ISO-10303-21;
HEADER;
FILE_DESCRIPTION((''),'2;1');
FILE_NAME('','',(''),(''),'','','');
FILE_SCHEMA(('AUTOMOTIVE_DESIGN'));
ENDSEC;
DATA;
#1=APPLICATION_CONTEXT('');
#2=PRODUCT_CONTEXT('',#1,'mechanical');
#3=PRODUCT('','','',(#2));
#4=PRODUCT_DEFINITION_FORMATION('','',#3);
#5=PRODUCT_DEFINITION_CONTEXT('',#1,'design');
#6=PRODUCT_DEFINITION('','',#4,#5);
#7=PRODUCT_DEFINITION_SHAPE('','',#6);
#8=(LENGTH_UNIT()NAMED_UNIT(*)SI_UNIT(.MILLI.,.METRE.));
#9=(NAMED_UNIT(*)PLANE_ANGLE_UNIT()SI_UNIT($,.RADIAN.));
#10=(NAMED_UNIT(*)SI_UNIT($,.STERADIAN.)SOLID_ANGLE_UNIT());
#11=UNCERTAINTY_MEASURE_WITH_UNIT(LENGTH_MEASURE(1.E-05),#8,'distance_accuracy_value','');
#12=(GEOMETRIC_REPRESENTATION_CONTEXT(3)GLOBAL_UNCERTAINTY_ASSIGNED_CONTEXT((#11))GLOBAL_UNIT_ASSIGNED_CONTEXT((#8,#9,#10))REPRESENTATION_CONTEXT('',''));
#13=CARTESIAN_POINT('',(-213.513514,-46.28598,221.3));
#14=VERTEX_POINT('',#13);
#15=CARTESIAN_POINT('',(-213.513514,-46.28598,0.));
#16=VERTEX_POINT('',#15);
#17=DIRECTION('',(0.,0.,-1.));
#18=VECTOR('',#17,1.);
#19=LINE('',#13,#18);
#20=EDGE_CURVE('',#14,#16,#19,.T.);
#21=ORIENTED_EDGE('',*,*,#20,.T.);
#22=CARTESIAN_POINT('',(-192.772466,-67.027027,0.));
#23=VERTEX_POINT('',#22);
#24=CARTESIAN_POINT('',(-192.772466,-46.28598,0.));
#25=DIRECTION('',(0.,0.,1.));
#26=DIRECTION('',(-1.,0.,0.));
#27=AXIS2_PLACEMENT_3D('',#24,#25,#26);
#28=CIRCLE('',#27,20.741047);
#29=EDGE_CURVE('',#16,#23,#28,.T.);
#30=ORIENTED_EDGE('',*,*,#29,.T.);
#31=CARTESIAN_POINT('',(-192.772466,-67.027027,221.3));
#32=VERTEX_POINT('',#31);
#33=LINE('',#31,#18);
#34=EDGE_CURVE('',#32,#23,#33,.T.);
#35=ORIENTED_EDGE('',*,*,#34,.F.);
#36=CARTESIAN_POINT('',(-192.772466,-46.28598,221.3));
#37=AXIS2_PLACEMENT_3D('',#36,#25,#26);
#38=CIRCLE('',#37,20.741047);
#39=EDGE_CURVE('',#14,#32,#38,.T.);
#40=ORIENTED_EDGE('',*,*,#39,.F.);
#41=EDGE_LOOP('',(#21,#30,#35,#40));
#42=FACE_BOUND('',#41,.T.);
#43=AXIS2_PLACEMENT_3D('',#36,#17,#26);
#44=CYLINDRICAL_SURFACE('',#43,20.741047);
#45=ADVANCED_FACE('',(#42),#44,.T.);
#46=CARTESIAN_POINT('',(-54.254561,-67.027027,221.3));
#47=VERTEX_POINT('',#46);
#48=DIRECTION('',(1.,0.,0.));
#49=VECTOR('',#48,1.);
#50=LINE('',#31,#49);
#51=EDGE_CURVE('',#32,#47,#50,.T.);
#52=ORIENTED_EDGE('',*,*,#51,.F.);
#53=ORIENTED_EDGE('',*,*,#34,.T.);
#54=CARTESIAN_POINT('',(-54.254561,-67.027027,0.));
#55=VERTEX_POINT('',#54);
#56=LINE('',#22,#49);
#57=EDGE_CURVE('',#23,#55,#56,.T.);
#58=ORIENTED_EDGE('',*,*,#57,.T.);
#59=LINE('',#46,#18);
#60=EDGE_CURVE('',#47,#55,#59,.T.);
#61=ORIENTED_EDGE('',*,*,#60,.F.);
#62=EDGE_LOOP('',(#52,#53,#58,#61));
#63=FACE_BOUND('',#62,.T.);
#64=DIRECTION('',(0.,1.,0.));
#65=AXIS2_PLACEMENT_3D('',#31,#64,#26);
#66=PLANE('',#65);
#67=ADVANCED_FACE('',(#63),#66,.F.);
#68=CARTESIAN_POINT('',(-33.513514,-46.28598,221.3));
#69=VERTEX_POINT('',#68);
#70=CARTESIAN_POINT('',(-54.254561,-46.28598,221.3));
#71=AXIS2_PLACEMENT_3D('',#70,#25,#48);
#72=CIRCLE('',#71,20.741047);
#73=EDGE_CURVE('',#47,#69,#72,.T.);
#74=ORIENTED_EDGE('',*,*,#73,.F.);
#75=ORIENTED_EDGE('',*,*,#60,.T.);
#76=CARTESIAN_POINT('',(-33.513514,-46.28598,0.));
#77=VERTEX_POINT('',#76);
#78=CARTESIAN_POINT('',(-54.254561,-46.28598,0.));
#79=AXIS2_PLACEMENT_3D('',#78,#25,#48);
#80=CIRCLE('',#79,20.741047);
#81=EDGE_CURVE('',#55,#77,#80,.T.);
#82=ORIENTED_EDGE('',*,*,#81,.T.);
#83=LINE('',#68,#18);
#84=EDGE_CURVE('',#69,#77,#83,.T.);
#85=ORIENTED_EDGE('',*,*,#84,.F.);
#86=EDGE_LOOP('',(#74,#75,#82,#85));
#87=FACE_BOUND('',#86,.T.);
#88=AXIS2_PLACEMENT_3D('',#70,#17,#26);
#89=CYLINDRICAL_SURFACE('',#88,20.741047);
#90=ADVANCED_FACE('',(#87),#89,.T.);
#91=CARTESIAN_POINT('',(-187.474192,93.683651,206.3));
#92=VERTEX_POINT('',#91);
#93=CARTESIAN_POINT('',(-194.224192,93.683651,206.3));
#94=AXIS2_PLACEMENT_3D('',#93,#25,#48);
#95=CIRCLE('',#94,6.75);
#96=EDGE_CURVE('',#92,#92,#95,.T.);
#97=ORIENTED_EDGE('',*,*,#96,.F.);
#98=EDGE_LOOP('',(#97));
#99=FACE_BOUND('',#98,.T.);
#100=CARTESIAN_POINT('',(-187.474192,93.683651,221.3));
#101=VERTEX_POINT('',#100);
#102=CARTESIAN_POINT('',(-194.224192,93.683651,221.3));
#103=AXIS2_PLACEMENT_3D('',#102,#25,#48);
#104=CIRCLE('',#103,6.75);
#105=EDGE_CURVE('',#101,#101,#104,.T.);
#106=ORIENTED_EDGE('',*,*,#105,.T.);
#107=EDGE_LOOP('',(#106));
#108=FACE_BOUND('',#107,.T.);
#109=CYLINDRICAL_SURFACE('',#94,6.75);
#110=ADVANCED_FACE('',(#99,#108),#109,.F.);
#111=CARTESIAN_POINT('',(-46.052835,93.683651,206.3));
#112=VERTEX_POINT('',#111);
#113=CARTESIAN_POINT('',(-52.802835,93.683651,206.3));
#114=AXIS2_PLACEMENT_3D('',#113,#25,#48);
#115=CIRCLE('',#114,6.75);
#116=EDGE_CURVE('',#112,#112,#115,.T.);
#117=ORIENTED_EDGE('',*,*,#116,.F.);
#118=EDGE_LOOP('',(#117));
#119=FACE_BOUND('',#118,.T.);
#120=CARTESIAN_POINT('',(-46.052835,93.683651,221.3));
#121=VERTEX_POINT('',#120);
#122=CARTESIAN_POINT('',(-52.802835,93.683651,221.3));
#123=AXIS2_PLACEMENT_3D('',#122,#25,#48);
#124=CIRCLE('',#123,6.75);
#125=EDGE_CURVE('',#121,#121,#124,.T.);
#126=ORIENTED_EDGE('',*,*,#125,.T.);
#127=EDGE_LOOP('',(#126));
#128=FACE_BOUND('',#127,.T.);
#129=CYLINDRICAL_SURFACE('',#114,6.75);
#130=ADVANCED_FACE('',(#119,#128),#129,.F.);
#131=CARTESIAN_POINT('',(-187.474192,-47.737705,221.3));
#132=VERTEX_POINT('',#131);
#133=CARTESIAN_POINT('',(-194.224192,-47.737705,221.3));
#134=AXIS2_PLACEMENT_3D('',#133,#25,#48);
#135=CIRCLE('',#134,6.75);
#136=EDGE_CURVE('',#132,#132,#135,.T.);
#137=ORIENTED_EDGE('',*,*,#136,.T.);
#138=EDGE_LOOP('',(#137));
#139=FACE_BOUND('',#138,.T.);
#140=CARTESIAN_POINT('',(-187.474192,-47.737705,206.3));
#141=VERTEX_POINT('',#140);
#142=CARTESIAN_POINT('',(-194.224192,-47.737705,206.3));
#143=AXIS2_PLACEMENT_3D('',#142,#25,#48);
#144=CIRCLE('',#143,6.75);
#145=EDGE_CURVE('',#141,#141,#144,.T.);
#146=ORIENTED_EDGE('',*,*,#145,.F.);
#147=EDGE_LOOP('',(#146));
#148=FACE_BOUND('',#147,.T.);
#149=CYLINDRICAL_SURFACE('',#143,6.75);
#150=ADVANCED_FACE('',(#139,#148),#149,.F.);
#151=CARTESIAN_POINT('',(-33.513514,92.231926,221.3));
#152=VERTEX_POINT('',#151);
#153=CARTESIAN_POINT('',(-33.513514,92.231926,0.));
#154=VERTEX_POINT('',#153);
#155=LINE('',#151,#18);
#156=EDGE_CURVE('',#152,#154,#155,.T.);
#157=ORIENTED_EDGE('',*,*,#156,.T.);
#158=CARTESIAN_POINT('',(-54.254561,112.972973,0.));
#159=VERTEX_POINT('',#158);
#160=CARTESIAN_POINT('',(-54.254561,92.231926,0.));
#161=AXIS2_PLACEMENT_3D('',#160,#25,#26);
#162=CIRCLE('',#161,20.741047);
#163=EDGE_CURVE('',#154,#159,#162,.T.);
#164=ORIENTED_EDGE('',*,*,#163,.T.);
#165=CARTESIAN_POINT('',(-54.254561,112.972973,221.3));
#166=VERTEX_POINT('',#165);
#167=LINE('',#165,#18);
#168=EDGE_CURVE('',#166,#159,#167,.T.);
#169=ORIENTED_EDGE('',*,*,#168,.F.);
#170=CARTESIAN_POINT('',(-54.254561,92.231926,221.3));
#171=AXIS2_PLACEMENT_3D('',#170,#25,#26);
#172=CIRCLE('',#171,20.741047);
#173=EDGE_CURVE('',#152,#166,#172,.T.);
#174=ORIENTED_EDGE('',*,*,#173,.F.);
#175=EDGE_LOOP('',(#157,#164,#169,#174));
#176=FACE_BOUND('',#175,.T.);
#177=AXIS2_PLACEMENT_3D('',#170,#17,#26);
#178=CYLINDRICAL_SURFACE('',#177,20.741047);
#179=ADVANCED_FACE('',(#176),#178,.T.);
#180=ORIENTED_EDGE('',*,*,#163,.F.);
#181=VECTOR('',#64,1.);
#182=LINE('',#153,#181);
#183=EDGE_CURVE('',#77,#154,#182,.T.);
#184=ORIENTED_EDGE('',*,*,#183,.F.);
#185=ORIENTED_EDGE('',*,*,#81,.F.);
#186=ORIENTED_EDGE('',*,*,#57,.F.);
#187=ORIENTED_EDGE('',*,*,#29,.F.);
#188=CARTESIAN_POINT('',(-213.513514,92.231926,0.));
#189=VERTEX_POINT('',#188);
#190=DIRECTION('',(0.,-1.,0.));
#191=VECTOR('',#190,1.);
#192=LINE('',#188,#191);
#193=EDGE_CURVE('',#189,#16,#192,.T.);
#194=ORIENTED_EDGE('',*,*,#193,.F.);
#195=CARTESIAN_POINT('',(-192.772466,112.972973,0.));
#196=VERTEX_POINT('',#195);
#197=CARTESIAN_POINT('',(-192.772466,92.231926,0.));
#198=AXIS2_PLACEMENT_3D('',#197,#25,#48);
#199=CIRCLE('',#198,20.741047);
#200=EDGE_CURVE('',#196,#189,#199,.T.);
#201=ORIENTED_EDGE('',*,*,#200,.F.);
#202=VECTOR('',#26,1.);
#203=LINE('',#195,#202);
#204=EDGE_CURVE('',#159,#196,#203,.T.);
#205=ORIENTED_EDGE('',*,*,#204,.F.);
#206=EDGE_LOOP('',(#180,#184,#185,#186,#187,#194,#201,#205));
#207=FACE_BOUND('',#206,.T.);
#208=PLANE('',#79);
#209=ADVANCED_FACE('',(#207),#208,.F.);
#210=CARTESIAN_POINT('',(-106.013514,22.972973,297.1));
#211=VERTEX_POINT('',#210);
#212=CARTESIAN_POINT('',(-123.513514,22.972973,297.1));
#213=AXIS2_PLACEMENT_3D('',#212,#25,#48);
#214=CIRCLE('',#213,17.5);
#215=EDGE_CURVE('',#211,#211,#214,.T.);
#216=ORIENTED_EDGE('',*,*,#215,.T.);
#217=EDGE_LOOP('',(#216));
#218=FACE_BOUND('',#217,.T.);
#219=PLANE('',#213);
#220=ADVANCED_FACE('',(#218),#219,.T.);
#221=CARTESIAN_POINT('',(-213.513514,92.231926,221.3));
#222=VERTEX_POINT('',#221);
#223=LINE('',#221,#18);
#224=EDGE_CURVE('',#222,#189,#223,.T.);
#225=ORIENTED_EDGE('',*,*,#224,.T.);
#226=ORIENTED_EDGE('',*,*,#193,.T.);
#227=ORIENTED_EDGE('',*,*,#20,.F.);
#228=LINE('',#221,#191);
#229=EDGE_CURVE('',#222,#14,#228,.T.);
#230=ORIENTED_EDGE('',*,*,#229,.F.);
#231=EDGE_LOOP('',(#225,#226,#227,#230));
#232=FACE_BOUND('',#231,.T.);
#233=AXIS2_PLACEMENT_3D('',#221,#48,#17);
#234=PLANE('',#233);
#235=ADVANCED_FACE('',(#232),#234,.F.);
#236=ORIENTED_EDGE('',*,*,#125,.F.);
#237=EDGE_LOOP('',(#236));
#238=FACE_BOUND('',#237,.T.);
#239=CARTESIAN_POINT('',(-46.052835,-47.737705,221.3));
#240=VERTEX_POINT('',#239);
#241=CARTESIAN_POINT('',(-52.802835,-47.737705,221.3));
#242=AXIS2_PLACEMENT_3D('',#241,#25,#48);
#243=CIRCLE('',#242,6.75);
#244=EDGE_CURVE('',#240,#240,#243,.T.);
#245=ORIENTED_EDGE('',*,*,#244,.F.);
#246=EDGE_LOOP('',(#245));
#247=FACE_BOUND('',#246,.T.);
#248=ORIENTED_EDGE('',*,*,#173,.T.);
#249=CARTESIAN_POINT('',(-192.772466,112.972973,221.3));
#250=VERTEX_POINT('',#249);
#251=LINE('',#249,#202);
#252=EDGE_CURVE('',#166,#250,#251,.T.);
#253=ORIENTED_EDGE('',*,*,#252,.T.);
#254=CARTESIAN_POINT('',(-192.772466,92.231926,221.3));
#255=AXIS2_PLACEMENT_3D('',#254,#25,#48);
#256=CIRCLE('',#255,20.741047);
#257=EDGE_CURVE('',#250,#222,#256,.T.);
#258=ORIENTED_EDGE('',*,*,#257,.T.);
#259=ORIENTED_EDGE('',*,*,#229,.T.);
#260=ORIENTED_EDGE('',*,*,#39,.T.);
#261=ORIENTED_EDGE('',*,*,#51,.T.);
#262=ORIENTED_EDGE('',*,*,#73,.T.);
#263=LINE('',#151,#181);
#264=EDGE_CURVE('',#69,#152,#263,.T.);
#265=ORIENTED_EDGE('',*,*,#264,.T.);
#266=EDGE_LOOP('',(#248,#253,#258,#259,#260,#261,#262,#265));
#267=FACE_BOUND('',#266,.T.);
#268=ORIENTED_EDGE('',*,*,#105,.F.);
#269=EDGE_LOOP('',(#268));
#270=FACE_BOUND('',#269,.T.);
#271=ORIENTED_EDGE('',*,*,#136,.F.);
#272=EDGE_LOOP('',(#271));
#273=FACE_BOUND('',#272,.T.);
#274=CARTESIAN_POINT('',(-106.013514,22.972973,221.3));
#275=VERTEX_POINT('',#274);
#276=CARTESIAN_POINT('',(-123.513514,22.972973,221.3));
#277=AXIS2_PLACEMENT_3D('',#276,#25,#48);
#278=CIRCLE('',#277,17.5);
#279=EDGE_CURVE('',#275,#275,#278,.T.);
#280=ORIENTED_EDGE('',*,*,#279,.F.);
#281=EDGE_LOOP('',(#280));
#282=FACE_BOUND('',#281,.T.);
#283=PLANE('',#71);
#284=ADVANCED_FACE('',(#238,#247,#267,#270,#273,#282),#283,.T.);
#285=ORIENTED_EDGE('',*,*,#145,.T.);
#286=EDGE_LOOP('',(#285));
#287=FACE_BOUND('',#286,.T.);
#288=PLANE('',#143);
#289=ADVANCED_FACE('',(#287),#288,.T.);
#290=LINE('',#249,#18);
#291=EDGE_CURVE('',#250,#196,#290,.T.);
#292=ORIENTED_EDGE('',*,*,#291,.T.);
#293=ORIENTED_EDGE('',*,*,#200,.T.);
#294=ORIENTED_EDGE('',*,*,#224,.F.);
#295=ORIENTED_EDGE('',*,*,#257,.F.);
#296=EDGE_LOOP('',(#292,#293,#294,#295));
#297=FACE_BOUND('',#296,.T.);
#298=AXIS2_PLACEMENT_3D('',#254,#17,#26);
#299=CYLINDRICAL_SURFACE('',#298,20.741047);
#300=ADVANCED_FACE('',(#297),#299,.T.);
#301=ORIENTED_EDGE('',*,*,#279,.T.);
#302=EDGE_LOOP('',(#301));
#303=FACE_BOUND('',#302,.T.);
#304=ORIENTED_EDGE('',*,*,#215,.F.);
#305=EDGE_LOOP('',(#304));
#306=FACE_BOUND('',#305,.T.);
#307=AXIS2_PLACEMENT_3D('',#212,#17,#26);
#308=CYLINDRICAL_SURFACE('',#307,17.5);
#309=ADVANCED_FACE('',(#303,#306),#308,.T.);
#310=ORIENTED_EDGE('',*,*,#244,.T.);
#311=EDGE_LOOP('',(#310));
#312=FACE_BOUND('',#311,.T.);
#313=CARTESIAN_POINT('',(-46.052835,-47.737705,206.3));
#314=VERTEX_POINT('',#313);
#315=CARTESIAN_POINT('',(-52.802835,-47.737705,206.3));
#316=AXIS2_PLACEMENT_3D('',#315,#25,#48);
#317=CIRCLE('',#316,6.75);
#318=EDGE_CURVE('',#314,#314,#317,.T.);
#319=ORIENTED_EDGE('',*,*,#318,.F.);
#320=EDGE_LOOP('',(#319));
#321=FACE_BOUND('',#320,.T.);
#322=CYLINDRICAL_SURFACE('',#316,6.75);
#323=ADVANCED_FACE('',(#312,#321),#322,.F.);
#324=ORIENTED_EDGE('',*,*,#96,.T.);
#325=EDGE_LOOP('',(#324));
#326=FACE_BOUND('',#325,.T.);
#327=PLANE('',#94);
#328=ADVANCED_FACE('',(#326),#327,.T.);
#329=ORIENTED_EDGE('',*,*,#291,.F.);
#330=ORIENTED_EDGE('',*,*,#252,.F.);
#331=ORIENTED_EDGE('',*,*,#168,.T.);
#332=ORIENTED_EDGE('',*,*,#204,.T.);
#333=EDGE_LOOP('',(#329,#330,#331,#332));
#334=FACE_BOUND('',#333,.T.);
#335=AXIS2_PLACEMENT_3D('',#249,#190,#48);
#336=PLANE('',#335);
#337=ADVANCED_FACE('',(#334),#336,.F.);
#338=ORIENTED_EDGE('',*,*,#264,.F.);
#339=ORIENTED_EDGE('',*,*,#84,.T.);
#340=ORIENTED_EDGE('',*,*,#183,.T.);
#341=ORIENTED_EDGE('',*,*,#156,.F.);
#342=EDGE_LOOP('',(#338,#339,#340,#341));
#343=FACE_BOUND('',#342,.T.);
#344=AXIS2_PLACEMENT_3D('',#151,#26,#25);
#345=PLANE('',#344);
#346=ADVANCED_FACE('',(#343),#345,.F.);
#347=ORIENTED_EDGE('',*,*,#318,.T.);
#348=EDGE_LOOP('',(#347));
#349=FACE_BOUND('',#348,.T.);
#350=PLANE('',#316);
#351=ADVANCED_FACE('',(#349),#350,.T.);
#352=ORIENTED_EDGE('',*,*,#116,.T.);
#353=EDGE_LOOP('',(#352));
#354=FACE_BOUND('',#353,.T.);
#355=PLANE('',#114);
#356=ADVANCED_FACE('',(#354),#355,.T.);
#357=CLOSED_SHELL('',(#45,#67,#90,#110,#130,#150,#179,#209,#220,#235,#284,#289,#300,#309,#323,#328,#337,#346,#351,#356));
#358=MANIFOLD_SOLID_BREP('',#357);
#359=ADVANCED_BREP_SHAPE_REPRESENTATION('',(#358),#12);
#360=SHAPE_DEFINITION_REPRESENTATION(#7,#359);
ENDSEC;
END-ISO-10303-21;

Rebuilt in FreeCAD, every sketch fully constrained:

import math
import FreeCAD as App
import Part
import Sketcher

doc = App.newDocument("Part")
body = doc.addObject("PartDesign::Body", "Body")

# Sketch on XY plane
sketch1 = body.newObject("Sketcher::SketchObject", "Sketch")
sketch1.AttachmentSupport = (doc.getObject("XY_Plane"), [""])
sketch1.MapMode = "FlatFace"
sketch1.addGeometry([
    Part.LineSegment(App.Vector(-54, 113, 0), App.Vector(-193, 113, 0)),  # 0
    Part.ArcOfCircle(Part.Circle(App.Vector(-193, 92, 0), App.Vector(0, 0, 1), 21), math.radians(90), math.radians(180)),  # 1
    Part.LineSegment(App.Vector(-214, 92, 0), App.Vector(-214, -46, 0)),  # 2
    Part.ArcOfCircle(Part.Circle(App.Vector(-193, -46, 0), App.Vector(0, 0, 1), 21), math.radians(-180), math.radians(-90)),  # 3
    Part.LineSegment(App.Vector(-193, -67, 0), App.Vector(-54, -67, 0)),  # 4
    Part.ArcOfCircle(Part.Circle(App.Vector(-54, -46, 0), App.Vector(0, 0, 1), 21), math.radians(-90), math.radians(0)),  # 5
    Part.LineSegment(App.Vector(-34, -46, 0), App.Vector(-34, 92, 0)),  # 6
    Part.ArcOfCircle(Part.Circle(App.Vector(-54, 92, 0), App.Vector(0, 0, 1), 21), math.radians(0), math.radians(90)),  # 7
], False)
sketch1.addConstraint([
    Sketcher.Constraint("Tangent", 0, 2, 1, 1),
    Sketcher.Constraint("Tangent", 1, 2, 2, 1),
    Sketcher.Constraint("Tangent", 2, 2, 3, 1),
    Sketcher.Constraint("Tangent", 3, 2, 4, 1),
    Sketcher.Constraint("Tangent", 4, 2, 5, 1),
    Sketcher.Constraint("Tangent", 5, 2, 6, 1),
    Sketcher.Constraint("Tangent", 6, 2, 7, 1),
    Sketcher.Constraint("Tangent", 7, 2, 0, 1),
    Sketcher.Constraint("Horizontal", 0),
    Sketcher.Constraint("Vertical", 2),
    Sketcher.Constraint("Horizontal", 4),
    Sketcher.Constraint("Vertical", 6),
    Sketcher.Constraint("Equal", 1, 3),
    Sketcher.Constraint("Equal", 3, 5),
    Sketcher.Constraint("Equal", 5, 7),
    Sketcher.Constraint("Equal", 4, 2),
    Sketcher.Constraint("Radius", 1, 20.741047),
    Sketcher.Constraint("DistanceX", 0, 2, 0, 1, 138.517906),
    Sketcher.Constraint("DistanceY", 3, 3, -1, 1, 46.28598),
    Sketcher.Constraint("DistanceX", 5, 3, -1, 1, 54.254561),
])
pad1 = body.newObject("PartDesign::Pad", "Pad")
pad1.Profile = sketch1
pad1.Length = 221.3

# Sketch on XY plane
sketch2 = body.newObject("Sketcher::SketchObject", "Sketch001")
sketch2.AttachmentSupport = (doc.getObject("XY_Plane"), [""])
sketch2.MapMode = "FlatFace"
sketch2.AttachmentOffset = App.Placement(App.Vector(0, 0, 221.3), App.Rotation())
sketch2.addGeometry(Part.Circle(App.Vector(-124, 23, 0), App.Vector(0, 0, 1), 18), False)
sketch2.addConstraint([
    Sketcher.Constraint("Diameter", 0, 35.0),
    Sketcher.Constraint("DistanceX", 0, 3, -1, 1, 123.513514),
    Sketcher.Constraint("DistanceY", -1, 1, 0, 3, 22.972973),
])
pad2 = body.newObject("PartDesign::Pad", "Pad001")
pad2.Profile = sketch2
pad2.Length = 75.8

# Sketch on XY plane
sketch3 = body.newObject("Sketcher::SketchObject", "Sketch002")
sketch3.AttachmentSupport = (doc.getObject("XY_Plane"), [""])
sketch3.MapMode = "FlatFace"
sketch3.AttachmentOffset = App.Placement(App.Vector(0, 0, 221.3), App.Rotation())
sketch3.addGeometry([
    Part.Circle(App.Vector(-53, 94, 0), App.Vector(0, 0, 1), 7),
    Part.Circle(App.Vector(-53, -48, 0), App.Vector(0, 0, 1), 7),
    Part.Circle(App.Vector(-194, -48, 0), App.Vector(0, 0, 1), 7),
    Part.Circle(App.Vector(-194, 94, 0), App.Vector(0, 0, 1), 7),
], False)
sketch3.addConstraint([
    Sketcher.Constraint("Equal", 0, 1),
    Sketcher.Constraint("Equal", 1, 2),
    Sketcher.Constraint("Equal", 2, 3),
    Sketcher.Constraint("Horizontal", 1, 3, 2, 3),
    Sketcher.Constraint("Horizontal", 0, 3, 3, 3),
    Sketcher.Constraint("Vertical", 0, 3, 1, 3),
    Sketcher.Constraint("Vertical", 2, 3, 3, 3),
    Sketcher.Constraint("Diameter", 0, 13.5),
    Sketcher.Constraint("DistanceY", -1, 1, 0, 3, 93.683651),
    Sketcher.Constraint("DistanceX", 2, 3, -1, 1, 194.224192),
    Sketcher.Constraint("DistanceX", 0, 3, -1, 1, 52.802835),
    Sketcher.Constraint("DistanceY", 1, 3, -1, 1, 47.737705),
])
pocket1 = body.newObject("PartDesign::Pocket", "Pocket")
pocket1.Profile = sketch3
pocket1.Length = 15

doc.recompute()
